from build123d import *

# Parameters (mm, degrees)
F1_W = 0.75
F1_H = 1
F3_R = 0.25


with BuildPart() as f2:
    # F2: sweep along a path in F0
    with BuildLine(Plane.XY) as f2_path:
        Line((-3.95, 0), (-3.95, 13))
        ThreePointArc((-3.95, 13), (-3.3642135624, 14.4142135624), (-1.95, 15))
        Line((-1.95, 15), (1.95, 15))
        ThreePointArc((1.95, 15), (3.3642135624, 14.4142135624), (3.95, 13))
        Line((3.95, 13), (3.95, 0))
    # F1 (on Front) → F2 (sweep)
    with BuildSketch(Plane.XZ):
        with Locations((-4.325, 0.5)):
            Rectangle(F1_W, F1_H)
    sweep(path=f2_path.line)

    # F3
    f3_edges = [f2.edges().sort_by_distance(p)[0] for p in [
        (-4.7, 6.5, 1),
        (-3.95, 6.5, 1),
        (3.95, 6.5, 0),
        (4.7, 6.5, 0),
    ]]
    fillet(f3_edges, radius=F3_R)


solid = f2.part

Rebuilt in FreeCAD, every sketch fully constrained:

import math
import FreeCAD as App
import Part
import Sketcher
Q = App.Units.Quantity


def edges_at(feature, points):
    """Names of the edges that pass closest to the given points."""
    edges = feature.Shape.Edges
    near = lambda p: min(range(len(edges)), key=lambda i: edges[i].distToShape(Part.Vertex(*p))[0])
    return sorted({f"Edge{near(p) + 1}" for p in points})

doc = App.newDocument("Part")
body = doc.addObject("PartDesign::Body", "Body")

sketch1 = body.newObject("Sketcher::SketchObject", "Sketch")
sketch1.AttachmentSupport = (doc.getObject("XZ_Plane"), [""])
sketch1.MapMode = "FlatFace"
sketch1.addGeometry(Part.LineSegment(App.Vector(-4.7, 1, 0), App.Vector(-4.7, 0, 0)), False)
sketch1.addGeometry(Part.LineSegment(App.Vector(-4.7, 0, 0), App.Vector(-4, 0, 0)), False)
sketch1.addGeometry(Part.LineSegment(App.Vector(-4, 0, 0), App.Vector(-4, 1, 0)), False)
sketch1.addGeometry(Part.LineSegment(App.Vector(-4, 1, 0), App.Vector(-4.7, 1, 0)), False)
sketch1.addConstraint(Sketcher.Constraint("Coincident", 0, 2, 1, 1))
sketch1.addConstraint(Sketcher.Constraint("Coincident", 1, 2, 2, 1))
sketch1.addConstraint(Sketcher.Constraint("Coincident", 2, 2, 3, 1))
sketch1.addConstraint(Sketcher.Constraint("Coincident", 3, 2, 0, 1))
sketch1.addConstraint(Sketcher.Constraint("Vertical", 0))
sketch1.addConstraint(Sketcher.Constraint("Horizontal", 1))
sketch1.addConstraint(Sketcher.Constraint("Vertical", 2))
sketch1.addConstraint(Sketcher.Constraint("Horizontal", 3))
sketch1.addConstraint(Sketcher.Constraint("PointOnObject", 0, 2, -1))
sketch1.addConstraint(Sketcher.Constraint("DistanceY", 0, 2, 0, 1, Q("1 mm")))
sketch1.addConstraint(Sketcher.Constraint("DistanceX", 1, 1, 1, 2, Q("0.75 mm")))
sketch1.addConstraint(Sketcher.Constraint("DistanceX", 0, 2, -1, 1, Q("4.7 mm")))

sketch2 = body.newObject("Sketcher::SketchObject", "Sketch001")
sketch2.AttachmentSupport = (doc.getObject("XY_Plane"), [""])
sketch2.MapMode = "FlatFace"
sketch2.addGeometry(Part.LineSegment(App.Vector(-4, 0, 0), App.Vector(-4, 13, 0)), False)
sketch2.addGeometry(Part.ArcOfCircle(Part.Circle(App.Vector(-1.9, 13, 0), App.Vector(0, 0, 1), 2), math.radians(90), math.radians(180)), False)
sketch2.addGeometry(Part.LineSegment(App.Vector(-1.9, 15, 0), App.Vector(1.9, 15, 0)), False)
sketch2.addGeometry(Part.ArcOfCircle(Part.Circle(App.Vector(1.9, 13, 0), App.Vector(0, 0, 1), 2), math.radians(0), math.radians(90)), False)
sketch2.addGeometry(Part.LineSegment(App.Vector(4, 13, 0), App.Vector(4, 0, 0)), False)
sketch2.addConstraint(Sketcher.Constraint("Tangent", 0, 2, 1, 2))
sketch2.addConstraint(Sketcher.Constraint("Tangent", 1, 1, 2, 1))
sketch2.addConstraint(Sketcher.Constraint("Tangent", 2, 2, 3, 2))
sketch2.addConstraint(Sketcher.Constraint("Tangent", 3, 1, 4, 1))
sketch2.addConstraint(Sketcher.Constraint("Vertical", 0))
sketch2.addConstraint(Sketcher.Constraint("Horizontal", 2))
sketch2.addConstraint(Sketcher.Constraint("Vertical", 4))
sketch2.addConstraint(Sketcher.Constraint("Equal", 1, 3))
sketch2.addConstraint(Sketcher.Constraint("Symmetric", 0, 1, 4, 2, -1, 1))
sketch2.addConstraint(Sketcher.Constraint("PointOnObject", 0, 1, -1))
sketch2.addConstraint(Sketcher.Constraint("Radius", 1, Q("2 mm")))
sketch2.addConstraint(Sketcher.Constraint("DistanceY", 0, 1, 0, 2, Q("13 mm")))
sketch2.addConstraint(Sketcher.Constraint("DistanceX", 2, 1, 2, 2, Q("3.9 mm")))
doc.recompute()

additivepipe = body.newObject("PartDesign::AdditivePipe", "AdditivePipe")
additivepipe.Profile = sketch1
additivepipe.Spine = (sketch2, ["Edge1", "Edge2", "Edge3", "Edge4", "Edge5"])
doc.recompute()

fillet = body.newObject("PartDesign::Fillet", "Fillet")
fillet.Base = (additivepipe, edges_at(additivepipe, [
    (-4.7, 6.5, 1),
    (-3.95, 6.5, 1),
    (3.95, 6.5, 0),
    (4.7, 6.5, 0),
]))
fillet.Radius = 0.25

doc.recompute()
